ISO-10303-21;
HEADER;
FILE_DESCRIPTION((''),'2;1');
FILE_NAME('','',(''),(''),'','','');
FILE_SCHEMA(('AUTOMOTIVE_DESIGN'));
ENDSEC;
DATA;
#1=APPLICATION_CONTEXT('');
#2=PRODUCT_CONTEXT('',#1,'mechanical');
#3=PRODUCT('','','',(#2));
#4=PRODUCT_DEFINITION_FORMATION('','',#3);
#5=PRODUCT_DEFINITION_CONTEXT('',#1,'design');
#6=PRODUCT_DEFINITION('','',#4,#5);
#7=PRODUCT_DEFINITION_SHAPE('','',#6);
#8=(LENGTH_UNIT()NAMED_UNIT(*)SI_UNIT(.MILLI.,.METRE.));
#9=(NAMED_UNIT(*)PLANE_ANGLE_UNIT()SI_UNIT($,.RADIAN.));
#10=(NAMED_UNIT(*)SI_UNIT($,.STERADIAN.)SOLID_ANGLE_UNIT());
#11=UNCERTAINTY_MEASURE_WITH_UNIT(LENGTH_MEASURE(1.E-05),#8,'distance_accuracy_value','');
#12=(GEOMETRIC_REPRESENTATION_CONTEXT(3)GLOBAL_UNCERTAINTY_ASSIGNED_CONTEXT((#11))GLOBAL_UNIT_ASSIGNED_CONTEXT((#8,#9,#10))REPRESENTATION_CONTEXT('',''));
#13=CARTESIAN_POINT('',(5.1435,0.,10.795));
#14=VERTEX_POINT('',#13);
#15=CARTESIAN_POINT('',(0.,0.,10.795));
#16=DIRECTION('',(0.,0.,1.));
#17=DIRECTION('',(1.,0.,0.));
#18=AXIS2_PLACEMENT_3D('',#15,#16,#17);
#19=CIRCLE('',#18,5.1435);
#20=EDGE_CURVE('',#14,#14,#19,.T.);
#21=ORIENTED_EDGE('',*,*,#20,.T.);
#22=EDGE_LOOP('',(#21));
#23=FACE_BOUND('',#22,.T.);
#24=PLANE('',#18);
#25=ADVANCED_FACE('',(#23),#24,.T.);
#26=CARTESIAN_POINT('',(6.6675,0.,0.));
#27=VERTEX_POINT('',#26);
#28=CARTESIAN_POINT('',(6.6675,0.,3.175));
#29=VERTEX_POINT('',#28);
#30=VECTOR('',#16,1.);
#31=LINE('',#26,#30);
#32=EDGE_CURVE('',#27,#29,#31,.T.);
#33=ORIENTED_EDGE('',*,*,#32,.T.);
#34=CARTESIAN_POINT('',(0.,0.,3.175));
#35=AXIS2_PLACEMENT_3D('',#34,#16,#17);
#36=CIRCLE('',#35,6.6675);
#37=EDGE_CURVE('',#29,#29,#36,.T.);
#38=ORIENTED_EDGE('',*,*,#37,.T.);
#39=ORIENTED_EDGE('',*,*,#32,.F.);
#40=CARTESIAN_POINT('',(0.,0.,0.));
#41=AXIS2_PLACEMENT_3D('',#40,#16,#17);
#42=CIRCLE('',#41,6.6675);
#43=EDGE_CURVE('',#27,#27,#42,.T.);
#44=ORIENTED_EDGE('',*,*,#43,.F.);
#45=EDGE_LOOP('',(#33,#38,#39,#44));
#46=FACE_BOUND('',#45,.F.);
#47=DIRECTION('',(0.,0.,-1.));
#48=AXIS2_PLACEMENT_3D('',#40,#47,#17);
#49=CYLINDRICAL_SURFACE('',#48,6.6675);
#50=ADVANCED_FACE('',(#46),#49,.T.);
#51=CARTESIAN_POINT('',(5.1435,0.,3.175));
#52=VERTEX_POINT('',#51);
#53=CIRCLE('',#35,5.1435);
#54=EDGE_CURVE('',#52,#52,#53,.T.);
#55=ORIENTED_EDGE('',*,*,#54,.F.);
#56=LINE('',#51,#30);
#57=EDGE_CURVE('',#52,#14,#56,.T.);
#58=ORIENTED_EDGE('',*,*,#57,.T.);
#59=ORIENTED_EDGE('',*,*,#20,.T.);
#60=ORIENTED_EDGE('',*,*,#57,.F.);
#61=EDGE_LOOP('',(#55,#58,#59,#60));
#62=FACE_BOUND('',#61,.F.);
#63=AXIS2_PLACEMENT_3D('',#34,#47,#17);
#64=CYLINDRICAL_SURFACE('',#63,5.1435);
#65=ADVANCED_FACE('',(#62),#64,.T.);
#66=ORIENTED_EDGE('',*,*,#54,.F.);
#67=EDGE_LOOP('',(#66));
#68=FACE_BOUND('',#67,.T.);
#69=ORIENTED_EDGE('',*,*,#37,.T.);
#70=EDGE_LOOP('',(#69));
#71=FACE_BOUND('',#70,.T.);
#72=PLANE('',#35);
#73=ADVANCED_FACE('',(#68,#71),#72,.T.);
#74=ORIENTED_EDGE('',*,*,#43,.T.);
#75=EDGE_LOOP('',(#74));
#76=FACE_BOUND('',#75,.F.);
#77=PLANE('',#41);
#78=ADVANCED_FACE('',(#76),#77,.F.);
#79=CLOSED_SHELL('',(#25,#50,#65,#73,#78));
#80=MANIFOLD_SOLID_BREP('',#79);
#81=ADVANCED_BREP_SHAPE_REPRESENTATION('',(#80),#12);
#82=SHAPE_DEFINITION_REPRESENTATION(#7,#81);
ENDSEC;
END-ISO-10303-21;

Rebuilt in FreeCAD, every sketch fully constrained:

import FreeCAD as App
import Part
import Sketcher
Q = App.Units.Quantity

doc = App.newDocument("Part")
body = doc.addObject("PartDesign::Body", "Body")

sketch1 = body.newObject("Sketcher::SketchObject", "Sketch")
sketch1.AttachmentSupport = (doc.getObject("XY_Plane"), [""])
sketch1.MapMode = "FlatFace"
sketch1.addGeometry(Part.Circle(App.Vector(0, 0, 0), App.Vector(0, 0, 1), 7), False)
sketch1.addConstraint([
    Sketcher.Constraint("Coincident", 0, 3, -1, 1),
    Sketcher.Constraint("Diameter", 0, Q("0.525 in")),
])
pad1 = body.newObject("PartDesign::Pad", "Pad")
pad1.Profile = sketch1
pad1.Length = Q("0.125 in")

sketch2 = body.newObject("Sketcher::SketchObject", "Sketch001")
sketch2.AttachmentSupport = (doc.getObject("XY_Plane"), [""])
sketch2.MapMode = "FlatFace"
sketch2.AttachmentOffset = App.Placement(App.Vector(0, 0, 0.125 * 25.4), App.Rotation())
sketch2.addGeometry(Part.Circle(App.Vector(0, 0, 0), App.Vector(0, 0, 1), 5), False)
sketch2.addConstraint([
    Sketcher.Constraint("Coincident", 0, 3, -1, 1),
    Sketcher.Constraint("Diameter", 0, Q("0.405 in")),
])
pad2 = body.newObject("PartDesign::Pad", "Pad001")
pad2.Profile = sketch2
pad2.Length = Q("0.3 in")

doc.recompute()
